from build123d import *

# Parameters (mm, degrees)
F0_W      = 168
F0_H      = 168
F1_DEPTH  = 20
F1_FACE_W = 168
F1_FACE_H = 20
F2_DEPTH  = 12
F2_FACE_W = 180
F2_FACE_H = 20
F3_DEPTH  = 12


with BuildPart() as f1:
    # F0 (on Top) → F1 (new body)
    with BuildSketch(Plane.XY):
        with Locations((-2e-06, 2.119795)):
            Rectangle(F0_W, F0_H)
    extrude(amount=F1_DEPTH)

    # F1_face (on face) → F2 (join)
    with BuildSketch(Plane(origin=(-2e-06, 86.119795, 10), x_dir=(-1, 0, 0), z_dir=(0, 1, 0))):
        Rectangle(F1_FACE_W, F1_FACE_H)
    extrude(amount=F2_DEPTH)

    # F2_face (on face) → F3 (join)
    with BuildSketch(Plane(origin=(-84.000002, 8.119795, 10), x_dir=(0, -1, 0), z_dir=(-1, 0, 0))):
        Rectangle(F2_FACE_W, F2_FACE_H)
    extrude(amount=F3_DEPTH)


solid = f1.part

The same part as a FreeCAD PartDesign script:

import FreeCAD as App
import Part
import Sketcher
from FreeCAD import Vector
Q = App.Units.Quantity

doc = App.newDocument("Part")
params = doc.addObject("Spreadsheet::Sheet", "Params")
for row, (alias, value) in enumerate([
    ("sketch1_width", "168 mm"),
    ("pad1_length", "20 mm"),
    ("sketch2_width", "168 mm"),
    ("sketch2_height", "20 mm"),
    ("pad2_length", "12 mm"),
    ("sketch3_width", "180 mm"),
    ("sketch3_height", "20 mm"),
    ("pad3_length", "12 mm"),
], start=1):
    params.set(f"A{row}", alias)
    params.set(f"B{row}", "=" + value)
    params.setAlias(f"B{row}", alias)

body = doc.addObject("PartDesign::Body", "Body")

sketch1 = doc.addObject("Sketcher::SketchObject", "Sketch")
body.addObject(sketch1)
sketch1.AttachmentSupport = (doc.XY_Plane, [""])
sketch1.MapMode = "FlatFace"
sketch1.addGeometry([
    Part.LineSegment(Vector(-84.000002, 86.119795, 0), Vector(-84.000002, -81.880205, 0)),
    Part.LineSegment(Vector(-84.000002, -81.880205, 0), Vector(83.999998, -81.880205, 0)),
    Part.LineSegment(Vector(83.999998, -81.880205, 0), Vector(83.999998, 86.119795, 0)),
    Part.LineSegment(Vector(83.999998, 86.119795, 0), Vector(-84.000002, 86.119795, 0)),
], False)
sketch1.addConstraint([
    Sketcher.Constraint("Coincident", 0, 2, 1, 1),
    Sketcher.Constraint("Coincident", 1, 2, 2, 1),
    Sketcher.Constraint("Coincident", 2, 2, 3, 1),
    Sketcher.Constraint("Coincident", 3, 2, 0, 1),
    Sketcher.Constraint("Vertical", 0),
    Sketcher.Constraint("Horizontal", 1),
    Sketcher.Constraint("Vertical", 2),
    Sketcher.Constraint("Horizontal", 3),
    Sketcher.Constraint("Equal", 3, 0),
    Sketcher.Constraint("DistanceX", 1, 1, 1, 2, Q("168 mm")),
    Sketcher.Constraint("DistanceX", 0, 2, -1, 1, Q("84.000002 mm")),
    Sketcher.Constraint("DistanceY", 0, 2, -1, 1, Q("81.880205 mm")),
])
sketch1.setExpression("Constraints[9]", "Params.sketch1_width")
pad1 = doc.addObject("PartDesign::Pad", "Pad")
body.addObject(pad1)
pad1.Profile = sketch1
pad1.setExpression("Length", "Params.pad1_length")

sketch2 = doc.addObject("Sketcher::SketchObject", "Sketch001")
body.addObject(sketch2)
sketch2.AttachmentSupport = (doc.XZ_Plane, [""])
sketch2.MapMode = "FlatFace"
sketch2.AttachmentOffset = App.Placement(Vector(0, 0, -86.119795), App.Rotation())
sketch2.addGeometry([
    Part.LineSegment(Vector(83.999998, 20, 0), Vector(83.999998, 0, 0)),
    Part.LineSegment(Vector(83.999998, 0, 0), Vector(-84.000002, 0, 0)),
    Part.LineSegment(Vector(-84.000002, 0, 0), Vector(-84.000002, 20, 0)),
    Part.LineSegment(Vector(-84.000002, 20, 0), Vector(83.999998, 20, 0)),
], False)
sketch2.addConstraint([
    Sketcher.Constraint("Coincident", 0, 2, 1, 1),
    Sketcher.Constraint("Coincident", 1, 2, 2, 1),
    Sketcher.Constraint("Coincident", 2, 2, 3, 1),
    Sketcher.Constraint("Coincident", 3, 2, 0, 1),
    Sketcher.Constraint("Vertical", 0),
    Sketcher.Constraint("Horizontal", 1),
    Sketcher.Constraint("Vertical", 2),
    Sketcher.Constraint("Horizontal", 3),
    Sketcher.Constraint("Symmetric", 0, 2, 1, 2, -1, 1),
    Sketcher.Constraint("DistanceX", 1, 2, 1, 1, Q("168 mm")),
    Sketcher.Constraint("DistanceY", 0, 2, 0, 1, Q("20 mm")),
])
sketch2.setExpression("Constraints[9]", "Params.sketch2_width")
sketch2.setExpression("Constraints[10]", "Params.sketch2_height")
pad2 = doc.addObject("PartDesign::Pad", "Pad001")
body.addObject(pad2)
pad2.Profile = sketch2
pad2.setExpression("Length", "Params.pad2_length")
pad2.Reversed = True

sketch3 = doc.addObject("Sketcher::SketchObject", "Sketch002")
body.addObject(sketch3)
sketch3.AttachmentSupport = (doc.YZ_Plane, [""])
sketch3.MapMode = "FlatFace"
sketch3.AttachmentOffset = App.Placement(Vector(0, 0, -84.000002), App.Rotation())
sketch3.addGeometry([
    Part.LineSegment(Vector(98.119795, 20, 0), Vector(98.119795, 0, 0)),
    Part.LineSegment(Vector(98.119795, 0, 0), Vector(-81.880205, 0, 0)),
    Part.LineSegment(Vector(-81.880205, 0, 0), Vector(-81.880205, 20, 0)),
    Part.LineSegment(Vector(-81.880205, 20, 0), Vector(98.119795, 20, 0)),
], False)
sketch3.addConstraint([
    Sketcher.Constraint("Coincident", 0, 2, 1, 1),
    Sketcher.Constraint("Coincident", 1, 2, 2, 1),
    Sketcher.Constraint("Coincident", 2, 2, 3, 1),
    Sketcher.Constraint("Coincident", 3, 2, 0, 1),
    Sketcher.Constraint("Vertical", 0),
    Sketcher.Constraint("Horizontal", 1),
    Sketcher.Constraint("Vertical", 2),
    Sketcher.Constraint("Horizontal", 3),
    Sketcher.Constraint("PointOnObject", 0, 2, -1),
    Sketcher.Constraint("DistanceX", 1, 2, 1, 1, Q("180 mm")),
    Sketcher.Constraint("DistanceY", 0, 2, 0, 1, Q("20 mm")),
    Sketcher.Constraint("DistanceX", -1, 1, 0, 2, Q("98.119795 mm")),
])
sketch3.setExpression("Constraints[9]", "Params.sketch3_width")
sketch3.setExpression("Constraints[10]", "Params.sketch3_height")
pad3 = doc.addObject("PartDesign::Pad", "Pad002")
body.addObject(pad3)
pad3.Profile = sketch3
pad3.setExpression("Length", "Params.pad3_length")
pad3.Reversed = True

doc.recompute()
